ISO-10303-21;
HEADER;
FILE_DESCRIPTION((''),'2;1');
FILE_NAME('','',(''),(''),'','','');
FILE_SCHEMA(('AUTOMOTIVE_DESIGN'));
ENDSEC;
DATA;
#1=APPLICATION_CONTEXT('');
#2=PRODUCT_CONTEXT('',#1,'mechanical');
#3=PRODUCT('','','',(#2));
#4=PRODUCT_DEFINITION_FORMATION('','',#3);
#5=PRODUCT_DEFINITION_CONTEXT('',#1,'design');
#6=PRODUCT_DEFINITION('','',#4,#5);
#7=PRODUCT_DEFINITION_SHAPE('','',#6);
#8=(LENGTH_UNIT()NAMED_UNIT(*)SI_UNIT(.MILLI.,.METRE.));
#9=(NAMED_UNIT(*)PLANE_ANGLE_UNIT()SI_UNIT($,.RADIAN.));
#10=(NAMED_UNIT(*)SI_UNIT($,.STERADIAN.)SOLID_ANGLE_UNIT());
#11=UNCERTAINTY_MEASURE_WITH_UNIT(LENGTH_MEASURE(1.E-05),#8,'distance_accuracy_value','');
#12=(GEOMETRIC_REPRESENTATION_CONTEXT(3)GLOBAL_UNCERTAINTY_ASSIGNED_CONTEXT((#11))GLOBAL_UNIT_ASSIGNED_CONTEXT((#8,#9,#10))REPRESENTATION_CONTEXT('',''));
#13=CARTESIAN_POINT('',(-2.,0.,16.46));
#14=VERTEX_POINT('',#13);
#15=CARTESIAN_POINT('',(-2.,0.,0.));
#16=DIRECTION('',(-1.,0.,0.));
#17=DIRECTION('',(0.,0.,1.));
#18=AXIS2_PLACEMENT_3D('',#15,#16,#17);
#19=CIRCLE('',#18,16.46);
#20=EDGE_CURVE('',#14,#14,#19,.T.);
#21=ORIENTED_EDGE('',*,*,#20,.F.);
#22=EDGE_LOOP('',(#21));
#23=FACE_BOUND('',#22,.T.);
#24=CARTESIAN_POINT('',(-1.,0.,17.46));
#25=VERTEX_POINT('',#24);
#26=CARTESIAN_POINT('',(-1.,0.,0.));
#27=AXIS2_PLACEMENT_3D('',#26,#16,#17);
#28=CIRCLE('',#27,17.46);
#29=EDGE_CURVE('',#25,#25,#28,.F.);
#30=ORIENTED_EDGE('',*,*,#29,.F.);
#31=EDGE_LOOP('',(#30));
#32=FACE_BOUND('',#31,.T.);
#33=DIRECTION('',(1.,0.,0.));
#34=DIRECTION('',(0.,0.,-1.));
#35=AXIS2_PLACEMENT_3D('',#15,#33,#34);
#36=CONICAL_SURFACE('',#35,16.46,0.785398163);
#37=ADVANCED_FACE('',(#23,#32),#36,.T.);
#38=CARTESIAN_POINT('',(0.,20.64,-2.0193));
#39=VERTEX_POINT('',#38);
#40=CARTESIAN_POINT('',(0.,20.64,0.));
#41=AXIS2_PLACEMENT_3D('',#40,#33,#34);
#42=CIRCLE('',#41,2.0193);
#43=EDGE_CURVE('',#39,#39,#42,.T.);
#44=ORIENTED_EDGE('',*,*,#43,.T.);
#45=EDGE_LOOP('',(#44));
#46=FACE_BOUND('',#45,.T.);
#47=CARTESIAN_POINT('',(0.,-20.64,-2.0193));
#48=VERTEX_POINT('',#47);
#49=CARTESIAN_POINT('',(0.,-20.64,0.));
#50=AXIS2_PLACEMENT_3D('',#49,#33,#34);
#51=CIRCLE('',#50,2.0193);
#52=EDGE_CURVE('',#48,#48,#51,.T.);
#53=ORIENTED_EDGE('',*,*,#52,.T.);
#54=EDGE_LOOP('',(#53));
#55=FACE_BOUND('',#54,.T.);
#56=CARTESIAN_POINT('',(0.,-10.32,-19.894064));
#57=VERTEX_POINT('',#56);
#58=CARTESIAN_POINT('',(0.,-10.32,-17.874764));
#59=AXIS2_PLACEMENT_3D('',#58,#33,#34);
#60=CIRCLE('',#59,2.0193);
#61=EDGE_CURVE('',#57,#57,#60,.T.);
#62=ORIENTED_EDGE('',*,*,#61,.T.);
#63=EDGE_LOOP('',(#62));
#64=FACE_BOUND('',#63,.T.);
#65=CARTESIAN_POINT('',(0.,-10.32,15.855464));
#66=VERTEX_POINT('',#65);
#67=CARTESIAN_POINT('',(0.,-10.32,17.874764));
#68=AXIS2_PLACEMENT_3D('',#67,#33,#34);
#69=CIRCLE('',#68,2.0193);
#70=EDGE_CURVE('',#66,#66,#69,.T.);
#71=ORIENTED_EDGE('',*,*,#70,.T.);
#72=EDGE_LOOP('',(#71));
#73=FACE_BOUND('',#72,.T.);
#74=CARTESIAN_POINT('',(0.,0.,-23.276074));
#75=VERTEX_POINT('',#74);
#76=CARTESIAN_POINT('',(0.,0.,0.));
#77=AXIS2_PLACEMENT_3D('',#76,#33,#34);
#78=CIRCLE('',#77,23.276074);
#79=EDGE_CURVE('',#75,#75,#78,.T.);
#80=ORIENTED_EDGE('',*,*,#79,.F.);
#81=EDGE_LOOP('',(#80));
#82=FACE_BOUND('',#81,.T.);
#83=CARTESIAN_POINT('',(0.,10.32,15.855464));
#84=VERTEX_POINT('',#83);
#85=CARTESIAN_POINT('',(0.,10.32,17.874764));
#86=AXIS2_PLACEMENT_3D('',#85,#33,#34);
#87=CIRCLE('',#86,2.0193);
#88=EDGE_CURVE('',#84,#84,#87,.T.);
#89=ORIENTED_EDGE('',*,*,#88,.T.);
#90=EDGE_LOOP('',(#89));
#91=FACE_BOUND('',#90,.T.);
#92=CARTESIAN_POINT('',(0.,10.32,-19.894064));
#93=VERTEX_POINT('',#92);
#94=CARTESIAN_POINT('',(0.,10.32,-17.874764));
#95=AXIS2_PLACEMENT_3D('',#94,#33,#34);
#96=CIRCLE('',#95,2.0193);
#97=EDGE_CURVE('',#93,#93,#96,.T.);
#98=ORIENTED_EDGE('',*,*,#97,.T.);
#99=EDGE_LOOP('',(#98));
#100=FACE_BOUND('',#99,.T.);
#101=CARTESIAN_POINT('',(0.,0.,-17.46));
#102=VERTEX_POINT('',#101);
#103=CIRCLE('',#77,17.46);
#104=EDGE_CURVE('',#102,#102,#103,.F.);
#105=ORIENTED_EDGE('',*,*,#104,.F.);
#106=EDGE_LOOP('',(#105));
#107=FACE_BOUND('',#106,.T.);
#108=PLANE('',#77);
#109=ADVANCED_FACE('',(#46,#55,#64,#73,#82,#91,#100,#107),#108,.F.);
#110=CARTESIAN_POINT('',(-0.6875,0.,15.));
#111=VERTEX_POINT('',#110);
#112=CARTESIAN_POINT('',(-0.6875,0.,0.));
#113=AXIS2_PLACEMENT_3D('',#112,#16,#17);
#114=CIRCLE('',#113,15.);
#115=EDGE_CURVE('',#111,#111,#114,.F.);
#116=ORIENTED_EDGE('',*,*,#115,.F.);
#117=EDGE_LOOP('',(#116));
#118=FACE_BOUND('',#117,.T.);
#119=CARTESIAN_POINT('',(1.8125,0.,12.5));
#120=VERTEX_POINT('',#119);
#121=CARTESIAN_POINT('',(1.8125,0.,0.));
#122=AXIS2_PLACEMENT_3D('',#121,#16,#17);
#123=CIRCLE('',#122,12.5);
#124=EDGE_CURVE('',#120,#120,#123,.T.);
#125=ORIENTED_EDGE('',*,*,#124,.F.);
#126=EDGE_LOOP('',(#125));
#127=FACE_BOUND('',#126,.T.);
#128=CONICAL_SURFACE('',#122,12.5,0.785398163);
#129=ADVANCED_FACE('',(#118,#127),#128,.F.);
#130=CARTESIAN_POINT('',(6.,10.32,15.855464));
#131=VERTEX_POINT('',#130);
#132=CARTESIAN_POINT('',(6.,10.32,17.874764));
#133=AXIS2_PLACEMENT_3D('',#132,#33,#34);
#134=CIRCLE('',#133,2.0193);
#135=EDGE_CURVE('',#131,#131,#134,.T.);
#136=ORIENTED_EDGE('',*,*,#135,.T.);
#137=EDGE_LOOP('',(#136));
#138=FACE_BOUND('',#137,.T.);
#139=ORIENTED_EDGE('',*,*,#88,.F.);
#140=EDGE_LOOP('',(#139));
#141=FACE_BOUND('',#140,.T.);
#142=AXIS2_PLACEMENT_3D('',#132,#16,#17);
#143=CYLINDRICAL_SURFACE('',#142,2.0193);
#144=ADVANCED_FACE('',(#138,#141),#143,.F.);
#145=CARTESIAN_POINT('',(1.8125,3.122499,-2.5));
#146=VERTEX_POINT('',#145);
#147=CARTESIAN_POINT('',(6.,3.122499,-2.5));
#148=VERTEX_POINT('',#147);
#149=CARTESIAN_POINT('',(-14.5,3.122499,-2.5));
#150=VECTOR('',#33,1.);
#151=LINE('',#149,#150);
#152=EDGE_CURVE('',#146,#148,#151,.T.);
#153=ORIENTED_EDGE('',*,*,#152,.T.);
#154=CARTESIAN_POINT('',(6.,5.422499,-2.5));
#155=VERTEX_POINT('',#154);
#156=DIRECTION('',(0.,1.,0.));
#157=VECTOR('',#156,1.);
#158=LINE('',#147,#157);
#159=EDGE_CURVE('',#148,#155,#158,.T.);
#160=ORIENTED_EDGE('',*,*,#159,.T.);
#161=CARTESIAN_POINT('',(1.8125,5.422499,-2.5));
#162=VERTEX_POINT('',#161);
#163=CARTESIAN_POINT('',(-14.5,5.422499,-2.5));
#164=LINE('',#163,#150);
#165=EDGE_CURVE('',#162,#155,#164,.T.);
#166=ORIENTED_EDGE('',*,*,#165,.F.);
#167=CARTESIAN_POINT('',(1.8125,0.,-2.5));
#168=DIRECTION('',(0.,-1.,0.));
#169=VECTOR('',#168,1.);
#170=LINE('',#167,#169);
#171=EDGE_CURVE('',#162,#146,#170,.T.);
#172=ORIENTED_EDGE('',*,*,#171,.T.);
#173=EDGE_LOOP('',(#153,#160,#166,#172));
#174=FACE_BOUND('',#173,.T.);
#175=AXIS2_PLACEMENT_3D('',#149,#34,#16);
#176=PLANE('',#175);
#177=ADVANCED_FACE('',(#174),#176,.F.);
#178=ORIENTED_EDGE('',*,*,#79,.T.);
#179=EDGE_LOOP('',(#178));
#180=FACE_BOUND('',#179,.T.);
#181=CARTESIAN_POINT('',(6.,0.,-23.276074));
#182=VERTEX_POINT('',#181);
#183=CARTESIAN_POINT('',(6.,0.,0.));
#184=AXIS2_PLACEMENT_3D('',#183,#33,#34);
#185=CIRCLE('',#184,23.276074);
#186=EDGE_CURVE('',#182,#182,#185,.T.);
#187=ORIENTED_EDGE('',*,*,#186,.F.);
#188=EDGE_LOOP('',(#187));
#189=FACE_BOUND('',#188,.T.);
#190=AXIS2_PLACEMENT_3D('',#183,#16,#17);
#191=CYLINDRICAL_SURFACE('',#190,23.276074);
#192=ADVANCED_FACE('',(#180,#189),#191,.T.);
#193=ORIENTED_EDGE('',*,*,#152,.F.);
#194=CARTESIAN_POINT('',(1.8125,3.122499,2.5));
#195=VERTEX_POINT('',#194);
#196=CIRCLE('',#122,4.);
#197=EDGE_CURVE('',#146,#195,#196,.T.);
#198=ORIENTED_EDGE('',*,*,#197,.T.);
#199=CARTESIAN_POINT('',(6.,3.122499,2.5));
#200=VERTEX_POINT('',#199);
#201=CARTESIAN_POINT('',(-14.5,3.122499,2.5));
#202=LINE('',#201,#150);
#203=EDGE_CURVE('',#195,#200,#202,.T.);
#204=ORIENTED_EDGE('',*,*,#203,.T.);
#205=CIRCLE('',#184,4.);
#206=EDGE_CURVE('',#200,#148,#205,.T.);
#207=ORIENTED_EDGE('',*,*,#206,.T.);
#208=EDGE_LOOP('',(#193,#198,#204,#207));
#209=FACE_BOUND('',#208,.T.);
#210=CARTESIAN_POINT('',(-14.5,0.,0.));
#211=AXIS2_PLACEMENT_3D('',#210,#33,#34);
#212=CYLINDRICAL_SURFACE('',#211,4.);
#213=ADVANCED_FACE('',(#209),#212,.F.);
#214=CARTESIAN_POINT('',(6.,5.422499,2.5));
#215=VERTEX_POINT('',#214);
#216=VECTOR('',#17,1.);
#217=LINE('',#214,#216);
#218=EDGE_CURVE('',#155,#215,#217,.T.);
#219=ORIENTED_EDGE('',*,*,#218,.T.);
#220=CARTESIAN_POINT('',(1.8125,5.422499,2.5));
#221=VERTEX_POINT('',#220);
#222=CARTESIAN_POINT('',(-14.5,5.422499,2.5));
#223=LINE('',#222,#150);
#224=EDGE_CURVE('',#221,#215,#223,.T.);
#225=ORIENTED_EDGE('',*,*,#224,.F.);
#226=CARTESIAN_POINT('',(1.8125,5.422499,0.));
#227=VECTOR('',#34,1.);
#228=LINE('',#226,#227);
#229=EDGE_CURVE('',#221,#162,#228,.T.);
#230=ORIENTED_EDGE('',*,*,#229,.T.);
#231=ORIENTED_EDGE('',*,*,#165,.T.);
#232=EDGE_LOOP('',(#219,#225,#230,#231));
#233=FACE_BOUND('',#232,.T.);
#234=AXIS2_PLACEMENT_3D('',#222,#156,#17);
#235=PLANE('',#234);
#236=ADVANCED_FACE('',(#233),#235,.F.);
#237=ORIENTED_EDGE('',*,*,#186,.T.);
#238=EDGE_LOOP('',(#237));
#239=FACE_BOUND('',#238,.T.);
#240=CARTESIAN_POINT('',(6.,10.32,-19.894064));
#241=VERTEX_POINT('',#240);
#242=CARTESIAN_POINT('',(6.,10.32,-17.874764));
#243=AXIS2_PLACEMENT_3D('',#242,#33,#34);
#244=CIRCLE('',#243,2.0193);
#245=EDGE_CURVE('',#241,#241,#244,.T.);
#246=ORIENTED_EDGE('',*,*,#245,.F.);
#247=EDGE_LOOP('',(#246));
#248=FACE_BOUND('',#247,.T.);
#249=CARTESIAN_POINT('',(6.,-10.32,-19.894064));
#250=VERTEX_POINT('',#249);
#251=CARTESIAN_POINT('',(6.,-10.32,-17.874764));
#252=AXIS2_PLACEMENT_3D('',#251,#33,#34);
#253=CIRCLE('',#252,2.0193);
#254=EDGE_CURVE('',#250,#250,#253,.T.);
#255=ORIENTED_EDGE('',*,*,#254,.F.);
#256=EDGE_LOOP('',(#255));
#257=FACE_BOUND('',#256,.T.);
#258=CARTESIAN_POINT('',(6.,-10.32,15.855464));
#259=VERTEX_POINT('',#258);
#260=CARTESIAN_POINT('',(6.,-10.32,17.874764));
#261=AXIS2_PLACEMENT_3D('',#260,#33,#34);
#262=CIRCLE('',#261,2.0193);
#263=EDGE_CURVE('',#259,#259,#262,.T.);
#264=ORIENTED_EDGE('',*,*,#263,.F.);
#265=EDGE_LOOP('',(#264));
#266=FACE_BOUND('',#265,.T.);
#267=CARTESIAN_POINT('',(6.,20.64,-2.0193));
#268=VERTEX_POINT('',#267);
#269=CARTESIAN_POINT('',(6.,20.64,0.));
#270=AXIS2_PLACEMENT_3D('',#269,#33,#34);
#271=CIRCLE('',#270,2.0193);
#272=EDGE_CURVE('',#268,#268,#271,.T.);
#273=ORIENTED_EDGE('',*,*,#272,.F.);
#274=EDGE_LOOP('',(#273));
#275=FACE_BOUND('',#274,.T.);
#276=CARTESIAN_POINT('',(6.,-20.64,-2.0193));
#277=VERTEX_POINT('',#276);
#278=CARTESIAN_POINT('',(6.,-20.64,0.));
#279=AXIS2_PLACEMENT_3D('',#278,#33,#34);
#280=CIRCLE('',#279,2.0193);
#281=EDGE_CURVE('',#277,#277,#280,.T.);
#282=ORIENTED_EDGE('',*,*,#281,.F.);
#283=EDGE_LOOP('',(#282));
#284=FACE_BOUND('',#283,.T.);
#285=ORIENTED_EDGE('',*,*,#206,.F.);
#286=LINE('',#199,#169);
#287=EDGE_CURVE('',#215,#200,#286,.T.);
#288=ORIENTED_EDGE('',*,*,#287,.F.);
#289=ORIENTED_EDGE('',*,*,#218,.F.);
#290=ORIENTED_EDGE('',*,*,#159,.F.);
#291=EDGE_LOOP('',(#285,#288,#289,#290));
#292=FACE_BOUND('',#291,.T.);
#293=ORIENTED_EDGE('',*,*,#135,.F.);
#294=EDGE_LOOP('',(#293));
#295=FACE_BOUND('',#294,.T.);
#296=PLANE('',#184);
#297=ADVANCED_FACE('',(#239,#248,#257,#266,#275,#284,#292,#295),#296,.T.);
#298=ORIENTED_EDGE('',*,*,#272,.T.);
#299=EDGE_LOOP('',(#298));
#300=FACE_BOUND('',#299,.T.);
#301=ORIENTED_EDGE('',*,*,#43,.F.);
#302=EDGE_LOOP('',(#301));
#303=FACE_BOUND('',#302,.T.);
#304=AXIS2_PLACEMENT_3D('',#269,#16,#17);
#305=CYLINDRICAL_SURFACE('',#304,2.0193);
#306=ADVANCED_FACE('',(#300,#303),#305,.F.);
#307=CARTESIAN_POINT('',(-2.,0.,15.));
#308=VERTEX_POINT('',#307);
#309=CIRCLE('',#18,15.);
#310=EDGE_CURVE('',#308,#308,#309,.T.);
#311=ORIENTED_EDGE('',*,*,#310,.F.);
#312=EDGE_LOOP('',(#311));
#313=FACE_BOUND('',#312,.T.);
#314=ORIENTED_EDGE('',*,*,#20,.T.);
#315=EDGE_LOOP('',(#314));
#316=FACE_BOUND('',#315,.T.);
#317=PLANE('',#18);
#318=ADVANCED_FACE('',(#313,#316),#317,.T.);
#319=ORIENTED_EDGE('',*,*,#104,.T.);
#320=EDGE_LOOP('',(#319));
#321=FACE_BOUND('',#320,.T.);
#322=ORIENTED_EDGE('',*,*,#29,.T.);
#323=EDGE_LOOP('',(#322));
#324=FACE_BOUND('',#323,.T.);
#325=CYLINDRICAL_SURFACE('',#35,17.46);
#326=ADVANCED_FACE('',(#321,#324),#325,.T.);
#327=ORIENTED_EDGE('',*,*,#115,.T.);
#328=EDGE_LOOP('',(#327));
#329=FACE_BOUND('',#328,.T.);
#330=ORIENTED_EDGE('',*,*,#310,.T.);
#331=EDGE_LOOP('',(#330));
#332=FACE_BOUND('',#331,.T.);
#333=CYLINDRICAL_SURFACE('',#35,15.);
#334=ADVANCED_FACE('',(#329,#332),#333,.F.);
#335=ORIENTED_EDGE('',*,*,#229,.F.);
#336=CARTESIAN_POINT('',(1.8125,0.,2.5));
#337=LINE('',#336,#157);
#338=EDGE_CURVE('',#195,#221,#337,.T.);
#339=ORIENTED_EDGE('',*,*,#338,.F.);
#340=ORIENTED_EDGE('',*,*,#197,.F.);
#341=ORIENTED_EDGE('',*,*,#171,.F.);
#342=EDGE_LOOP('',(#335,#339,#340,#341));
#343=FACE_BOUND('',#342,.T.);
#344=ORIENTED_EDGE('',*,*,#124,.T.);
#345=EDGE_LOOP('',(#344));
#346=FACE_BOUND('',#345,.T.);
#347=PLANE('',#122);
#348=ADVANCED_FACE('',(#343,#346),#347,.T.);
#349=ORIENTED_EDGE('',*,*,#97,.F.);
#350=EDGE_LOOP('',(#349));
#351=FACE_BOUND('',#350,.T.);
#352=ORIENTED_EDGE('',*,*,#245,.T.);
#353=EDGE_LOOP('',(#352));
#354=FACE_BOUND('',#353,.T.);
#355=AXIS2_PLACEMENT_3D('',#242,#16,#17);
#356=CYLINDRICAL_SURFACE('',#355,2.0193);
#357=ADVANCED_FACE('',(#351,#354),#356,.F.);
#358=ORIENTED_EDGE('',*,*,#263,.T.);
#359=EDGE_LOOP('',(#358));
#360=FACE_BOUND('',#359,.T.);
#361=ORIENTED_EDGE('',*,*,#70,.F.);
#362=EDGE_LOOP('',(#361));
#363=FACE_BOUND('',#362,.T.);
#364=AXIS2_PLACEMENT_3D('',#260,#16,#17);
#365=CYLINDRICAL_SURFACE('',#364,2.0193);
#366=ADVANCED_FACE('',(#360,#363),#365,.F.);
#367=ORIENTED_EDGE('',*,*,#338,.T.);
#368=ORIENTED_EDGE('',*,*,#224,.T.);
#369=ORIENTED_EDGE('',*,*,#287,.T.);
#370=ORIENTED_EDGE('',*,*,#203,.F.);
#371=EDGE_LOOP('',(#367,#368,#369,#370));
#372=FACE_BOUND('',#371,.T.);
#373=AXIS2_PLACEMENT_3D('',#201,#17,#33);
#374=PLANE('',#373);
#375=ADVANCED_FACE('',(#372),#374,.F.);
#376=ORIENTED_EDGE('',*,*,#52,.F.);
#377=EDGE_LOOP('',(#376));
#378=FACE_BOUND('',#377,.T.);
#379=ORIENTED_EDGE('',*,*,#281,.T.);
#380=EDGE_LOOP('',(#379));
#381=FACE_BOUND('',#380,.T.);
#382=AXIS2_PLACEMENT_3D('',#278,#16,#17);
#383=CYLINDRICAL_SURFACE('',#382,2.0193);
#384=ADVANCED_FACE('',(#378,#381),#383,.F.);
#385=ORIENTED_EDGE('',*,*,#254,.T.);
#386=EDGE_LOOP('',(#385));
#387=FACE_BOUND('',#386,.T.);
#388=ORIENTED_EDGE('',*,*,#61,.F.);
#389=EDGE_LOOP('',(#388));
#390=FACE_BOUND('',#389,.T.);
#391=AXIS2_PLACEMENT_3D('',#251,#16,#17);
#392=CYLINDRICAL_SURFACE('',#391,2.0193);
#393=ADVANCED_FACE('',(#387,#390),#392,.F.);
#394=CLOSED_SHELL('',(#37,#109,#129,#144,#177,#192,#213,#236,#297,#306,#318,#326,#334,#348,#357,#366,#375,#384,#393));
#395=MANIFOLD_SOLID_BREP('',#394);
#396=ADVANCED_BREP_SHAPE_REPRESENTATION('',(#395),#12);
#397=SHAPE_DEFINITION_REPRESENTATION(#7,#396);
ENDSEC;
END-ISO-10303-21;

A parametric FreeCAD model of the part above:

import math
import FreeCAD as App
import Part
import Sketcher
Q = App.Units.Quantity


def edges_at(feature, points):
    """Names of the edges that pass closest to the given points."""
    edges = feature.Shape.Edges
    near = lambda p: min(range(len(edges)), key=lambda i: edges[i].distToShape(Part.Vertex(*p))[0])
    return sorted({f"Edge{near(p) + 1}" for p in points})

doc = App.newDocument("Part")
params = doc.addObject("Spreadsheet::Sheet", "Params")
for row, (alias, value) in enumerate([
    ("pad1_length", "6 mm"),
    ("sketch2_diameter", "30 mm"),
    ("sketch2_diameter2", "34.92 mm"),
    ("pad2_length", "2 mm"),
    ("sketch3_diameter", "30 mm"),
    ("pocket1_length", "1.8125 mm"),
    ("chamfer_size", "2.5 mm"),
    ("chamfer2_size", "1 mm"),
    ("sketch4_radius", "4 mm"),
    ("sketch4_height", "5 mm"),
    ("sketch4_width", "2.3 mm"),
    ("pocket2_length", "20.5 mm"),
], start=1):
    params.set(f"A{row}", alias)
    params.set(f"B{row}", "=" + value)
    params.setAlias(f"B{row}", alias)

body = doc.addObject("PartDesign::Body", "Body")

sketch1 = body.newObject("Sketcher::SketchObject", "Sketch")
sketch1.AttachmentSupport = (doc.getObject("YZ_Plane"), [""])
sketch1.MapMode = "FlatFace"
sketch1.addGeometry([
    Part.Circle(App.Vector(0, 0, 0), App.Vector(0, 0, 1), 23.3),
    Part.Circle(App.Vector(-20.6, 0, 0), App.Vector(0, 0, 1), 2),
    Part.Circle(App.Vector(-10.3, 17.9, 0), App.Vector(0, 0, 1), 2),
    Part.Circle(App.Vector(-10.3, -17.9, 0), App.Vector(0, 0, 1), 2),
    Part.Circle(App.Vector(10.3, 17.9, 0), App.Vector(0, 0, 1), 2),
    Part.Circle(App.Vector(20.6, 0, 0), App.Vector(0, 0, 1), 2),
    Part.Circle(App.Vector(10.3, -17.9, 0), App.Vector(0, 0, 1), 2),
], False)
sketch1.addConstraint([
    Sketcher.Constraint("Coincident", 0, 3, -1, 1),
    Sketcher.Constraint("Equal", 1, 2),
    Sketcher.Constraint("Equal", 2, 3),
    Sketcher.Constraint("Equal", 3, 4),
    Sketcher.Constraint("Equal", 4, 5),
    Sketcher.Constraint("Equal", 5, 6),
    Sketcher.Constraint("Symmetric", 3, 3, 4, 3, -1, 1),
    Sketcher.Constraint("Symmetric", 1, 3, 5, 3, -1, 1),
    Sketcher.Constraint("Symmetric", 2, 3, 6, 3, -1, 1),
    Sketcher.Constraint("Symmetric", 2, 3, 4, 3, -2),
    Sketcher.Constraint("PointOnObject", 1, 3, -1),
    Sketcher.Constraint("Diameter", 1, Q("4.0386 mm")),
    Sketcher.Constraint("Diameter", 0, Q("46.552149 mm")),
    Sketcher.Constraint("DistanceX", 1, 3, -1, 1, Q("20.64 mm")),
    Sketcher.Constraint("DistanceX", 2, 3, -1, 1, Q("10.32 mm")),
    Sketcher.Constraint("DistanceY", 3, 3, 2, 3, Q("35.749529 mm")),
])
pad1 = body.newObject("PartDesign::Pad", "Pad")
pad1.Profile = sketch1
pad1.setExpression("Length", "Params.pad1_length")

sketch2 = body.newObject("Sketcher::SketchObject", "Sketch001")
sketch2.AttachmentSupport = (doc.getObject("YZ_Plane"), [""])
sketch2.MapMode = "FlatFace"
sketch2.addGeometry([
    Part.Circle(App.Vector(0, 0, 0), App.Vector(0, 0, 1), 17),
    Part.Circle(App.Vector(0, 0, 0), App.Vector(0, 0, 1), 15),
], False)
sketch2.addConstraint([
    Sketcher.Constraint("Coincident", 0, 3, -1, 1),
    Sketcher.Constraint("Coincident", 1, 3, -1, 1),
    Sketcher.Constraint("Diameter", 1, Q("30 mm")),
    Sketcher.Constraint("Diameter", 0, Q("34.92 mm")),
])
sketch2.setExpression("Constraints[2]", "Params.sketch2_diameter")
sketch2.setExpression("Constraints[3]", "Params.sketch2_diameter2")
pad2 = body.newObject("PartDesign::Pad", "Pad001")
pad2.Profile = sketch2
pad2.setExpression("Length", "Params.pad2_length")
pad2.Reversed = True

sketch3 = body.newObject("Sketcher::SketchObject", "Sketch002")
sketch3.AttachmentSupport = (doc.getObject("YZ_Plane"), [""])
sketch3.MapMode = "FlatFace"
sketch3.AttachmentOffset = App.Placement(App.Vector(0, 0, 1.8125), App.Rotation())
sketch3.addGeometry(Part.Circle(App.Vector(0, 0, 0), App.Vector(0, 0, 1), 15), False)
sketch3.addConstraint([
    Sketcher.Constraint("Coincident", 0, 3, -1, 1),
    Sketcher.Constraint("Diameter", 0, Q("30 mm")),
])
sketch3.setExpression("Constraints[1]", "Params.sketch3_diameter")
pocket1 = body.newObject("PartDesign::Pocket", "Pocket")
pocket1.Profile = sketch3
pocket1.setExpression("Length", "Params.pocket1_length")
doc.recompute()

chamfer = body.newObject("PartDesign::Chamfer", "Chamfer")
chamfer.Base = (pocket1, edges_at(pocket1, [(1.812, 0, -15)]))
chamfer.setExpression("Size", "Params.chamfer_size")
doc.recompute()

chamfer2 = body.newObject("PartDesign::Chamfer", "Chamfer001")
chamfer2.Base = (chamfer, edges_at(chamfer, [(-2, 0, 17.46)]))
chamfer2.setExpression("Size", "Params.chamfer2_size")

sketch4 = body.newObject("Sketcher::SketchObject", "Sketch003")
sketch4.AttachmentSupport = (doc.getObject("YZ_Plane"), [""])
sketch4.MapMode = "FlatFace"
sketch4.AttachmentOffset = App.Placement(App.Vector(0, 0, 6), App.Rotation())
sketch4.addGeometry([
    Part.LineSegment(App.Vector(5.4, 2.5, 0), App.Vector(3.1, 2.5, 0)),
    Part.ArcOfCircle(Part.Circle(App.Vector(0, 0, 0), App.Vector(0, 0, 1), 4), math.radians(39), math.radians(321)),
    Part.LineSegment(App.Vector(3.1, -2.5, 0), App.Vector(5.4, -2.5, 0)),
    Part.LineSegment(App.Vector(5.4, -2.5, 0), App.Vector(5.4, 2.5, 0)),
], False)
sketch4.addConstraint([
    Sketcher.Constraint("Coincident", 0, 2, 1, 1),
    Sketcher.Constraint("Coincident", 1, 2, 2, 1),
    Sketcher.Constraint("Coincident", 2, 2, 3, 1),
    Sketcher.Constraint("Coincident", 3, 2, 0, 1),
    Sketcher.Constraint("Horizontal", 0),
    Sketcher.Constraint("Horizontal", 2),
    Sketcher.Constraint("Vertical", 3),
    Sketcher.Constraint("Coincident", 1, 3, -1, 1),
    Sketcher.Constraint("Vertical", 0, 2, 1, 2),
    Sketcher.Constraint("Radius", 1, Q("4 mm")),
    Sketcher.Constraint("DistanceY", 3, 1, 3, 2, Q("5 mm")),
    Sketcher.Constraint("DistanceX", 0, 2, 0, 1, Q("2.3 mm")),
])
sketch4.setExpression("Constraints[9]", "Params.sketch4_radius")
sketch4.setExpression("Constraints[10]", "Params.sketch4_height")
sketch4.setExpression("Constraints[11]", "Params.sketch4_width")
pocket2 = body.newObject("PartDesign::Pocket", "Pocket001")
pocket2.Profile = sketch4
pocket2.setExpression("Length", "Params.pocket2_length")

doc.recompute()
